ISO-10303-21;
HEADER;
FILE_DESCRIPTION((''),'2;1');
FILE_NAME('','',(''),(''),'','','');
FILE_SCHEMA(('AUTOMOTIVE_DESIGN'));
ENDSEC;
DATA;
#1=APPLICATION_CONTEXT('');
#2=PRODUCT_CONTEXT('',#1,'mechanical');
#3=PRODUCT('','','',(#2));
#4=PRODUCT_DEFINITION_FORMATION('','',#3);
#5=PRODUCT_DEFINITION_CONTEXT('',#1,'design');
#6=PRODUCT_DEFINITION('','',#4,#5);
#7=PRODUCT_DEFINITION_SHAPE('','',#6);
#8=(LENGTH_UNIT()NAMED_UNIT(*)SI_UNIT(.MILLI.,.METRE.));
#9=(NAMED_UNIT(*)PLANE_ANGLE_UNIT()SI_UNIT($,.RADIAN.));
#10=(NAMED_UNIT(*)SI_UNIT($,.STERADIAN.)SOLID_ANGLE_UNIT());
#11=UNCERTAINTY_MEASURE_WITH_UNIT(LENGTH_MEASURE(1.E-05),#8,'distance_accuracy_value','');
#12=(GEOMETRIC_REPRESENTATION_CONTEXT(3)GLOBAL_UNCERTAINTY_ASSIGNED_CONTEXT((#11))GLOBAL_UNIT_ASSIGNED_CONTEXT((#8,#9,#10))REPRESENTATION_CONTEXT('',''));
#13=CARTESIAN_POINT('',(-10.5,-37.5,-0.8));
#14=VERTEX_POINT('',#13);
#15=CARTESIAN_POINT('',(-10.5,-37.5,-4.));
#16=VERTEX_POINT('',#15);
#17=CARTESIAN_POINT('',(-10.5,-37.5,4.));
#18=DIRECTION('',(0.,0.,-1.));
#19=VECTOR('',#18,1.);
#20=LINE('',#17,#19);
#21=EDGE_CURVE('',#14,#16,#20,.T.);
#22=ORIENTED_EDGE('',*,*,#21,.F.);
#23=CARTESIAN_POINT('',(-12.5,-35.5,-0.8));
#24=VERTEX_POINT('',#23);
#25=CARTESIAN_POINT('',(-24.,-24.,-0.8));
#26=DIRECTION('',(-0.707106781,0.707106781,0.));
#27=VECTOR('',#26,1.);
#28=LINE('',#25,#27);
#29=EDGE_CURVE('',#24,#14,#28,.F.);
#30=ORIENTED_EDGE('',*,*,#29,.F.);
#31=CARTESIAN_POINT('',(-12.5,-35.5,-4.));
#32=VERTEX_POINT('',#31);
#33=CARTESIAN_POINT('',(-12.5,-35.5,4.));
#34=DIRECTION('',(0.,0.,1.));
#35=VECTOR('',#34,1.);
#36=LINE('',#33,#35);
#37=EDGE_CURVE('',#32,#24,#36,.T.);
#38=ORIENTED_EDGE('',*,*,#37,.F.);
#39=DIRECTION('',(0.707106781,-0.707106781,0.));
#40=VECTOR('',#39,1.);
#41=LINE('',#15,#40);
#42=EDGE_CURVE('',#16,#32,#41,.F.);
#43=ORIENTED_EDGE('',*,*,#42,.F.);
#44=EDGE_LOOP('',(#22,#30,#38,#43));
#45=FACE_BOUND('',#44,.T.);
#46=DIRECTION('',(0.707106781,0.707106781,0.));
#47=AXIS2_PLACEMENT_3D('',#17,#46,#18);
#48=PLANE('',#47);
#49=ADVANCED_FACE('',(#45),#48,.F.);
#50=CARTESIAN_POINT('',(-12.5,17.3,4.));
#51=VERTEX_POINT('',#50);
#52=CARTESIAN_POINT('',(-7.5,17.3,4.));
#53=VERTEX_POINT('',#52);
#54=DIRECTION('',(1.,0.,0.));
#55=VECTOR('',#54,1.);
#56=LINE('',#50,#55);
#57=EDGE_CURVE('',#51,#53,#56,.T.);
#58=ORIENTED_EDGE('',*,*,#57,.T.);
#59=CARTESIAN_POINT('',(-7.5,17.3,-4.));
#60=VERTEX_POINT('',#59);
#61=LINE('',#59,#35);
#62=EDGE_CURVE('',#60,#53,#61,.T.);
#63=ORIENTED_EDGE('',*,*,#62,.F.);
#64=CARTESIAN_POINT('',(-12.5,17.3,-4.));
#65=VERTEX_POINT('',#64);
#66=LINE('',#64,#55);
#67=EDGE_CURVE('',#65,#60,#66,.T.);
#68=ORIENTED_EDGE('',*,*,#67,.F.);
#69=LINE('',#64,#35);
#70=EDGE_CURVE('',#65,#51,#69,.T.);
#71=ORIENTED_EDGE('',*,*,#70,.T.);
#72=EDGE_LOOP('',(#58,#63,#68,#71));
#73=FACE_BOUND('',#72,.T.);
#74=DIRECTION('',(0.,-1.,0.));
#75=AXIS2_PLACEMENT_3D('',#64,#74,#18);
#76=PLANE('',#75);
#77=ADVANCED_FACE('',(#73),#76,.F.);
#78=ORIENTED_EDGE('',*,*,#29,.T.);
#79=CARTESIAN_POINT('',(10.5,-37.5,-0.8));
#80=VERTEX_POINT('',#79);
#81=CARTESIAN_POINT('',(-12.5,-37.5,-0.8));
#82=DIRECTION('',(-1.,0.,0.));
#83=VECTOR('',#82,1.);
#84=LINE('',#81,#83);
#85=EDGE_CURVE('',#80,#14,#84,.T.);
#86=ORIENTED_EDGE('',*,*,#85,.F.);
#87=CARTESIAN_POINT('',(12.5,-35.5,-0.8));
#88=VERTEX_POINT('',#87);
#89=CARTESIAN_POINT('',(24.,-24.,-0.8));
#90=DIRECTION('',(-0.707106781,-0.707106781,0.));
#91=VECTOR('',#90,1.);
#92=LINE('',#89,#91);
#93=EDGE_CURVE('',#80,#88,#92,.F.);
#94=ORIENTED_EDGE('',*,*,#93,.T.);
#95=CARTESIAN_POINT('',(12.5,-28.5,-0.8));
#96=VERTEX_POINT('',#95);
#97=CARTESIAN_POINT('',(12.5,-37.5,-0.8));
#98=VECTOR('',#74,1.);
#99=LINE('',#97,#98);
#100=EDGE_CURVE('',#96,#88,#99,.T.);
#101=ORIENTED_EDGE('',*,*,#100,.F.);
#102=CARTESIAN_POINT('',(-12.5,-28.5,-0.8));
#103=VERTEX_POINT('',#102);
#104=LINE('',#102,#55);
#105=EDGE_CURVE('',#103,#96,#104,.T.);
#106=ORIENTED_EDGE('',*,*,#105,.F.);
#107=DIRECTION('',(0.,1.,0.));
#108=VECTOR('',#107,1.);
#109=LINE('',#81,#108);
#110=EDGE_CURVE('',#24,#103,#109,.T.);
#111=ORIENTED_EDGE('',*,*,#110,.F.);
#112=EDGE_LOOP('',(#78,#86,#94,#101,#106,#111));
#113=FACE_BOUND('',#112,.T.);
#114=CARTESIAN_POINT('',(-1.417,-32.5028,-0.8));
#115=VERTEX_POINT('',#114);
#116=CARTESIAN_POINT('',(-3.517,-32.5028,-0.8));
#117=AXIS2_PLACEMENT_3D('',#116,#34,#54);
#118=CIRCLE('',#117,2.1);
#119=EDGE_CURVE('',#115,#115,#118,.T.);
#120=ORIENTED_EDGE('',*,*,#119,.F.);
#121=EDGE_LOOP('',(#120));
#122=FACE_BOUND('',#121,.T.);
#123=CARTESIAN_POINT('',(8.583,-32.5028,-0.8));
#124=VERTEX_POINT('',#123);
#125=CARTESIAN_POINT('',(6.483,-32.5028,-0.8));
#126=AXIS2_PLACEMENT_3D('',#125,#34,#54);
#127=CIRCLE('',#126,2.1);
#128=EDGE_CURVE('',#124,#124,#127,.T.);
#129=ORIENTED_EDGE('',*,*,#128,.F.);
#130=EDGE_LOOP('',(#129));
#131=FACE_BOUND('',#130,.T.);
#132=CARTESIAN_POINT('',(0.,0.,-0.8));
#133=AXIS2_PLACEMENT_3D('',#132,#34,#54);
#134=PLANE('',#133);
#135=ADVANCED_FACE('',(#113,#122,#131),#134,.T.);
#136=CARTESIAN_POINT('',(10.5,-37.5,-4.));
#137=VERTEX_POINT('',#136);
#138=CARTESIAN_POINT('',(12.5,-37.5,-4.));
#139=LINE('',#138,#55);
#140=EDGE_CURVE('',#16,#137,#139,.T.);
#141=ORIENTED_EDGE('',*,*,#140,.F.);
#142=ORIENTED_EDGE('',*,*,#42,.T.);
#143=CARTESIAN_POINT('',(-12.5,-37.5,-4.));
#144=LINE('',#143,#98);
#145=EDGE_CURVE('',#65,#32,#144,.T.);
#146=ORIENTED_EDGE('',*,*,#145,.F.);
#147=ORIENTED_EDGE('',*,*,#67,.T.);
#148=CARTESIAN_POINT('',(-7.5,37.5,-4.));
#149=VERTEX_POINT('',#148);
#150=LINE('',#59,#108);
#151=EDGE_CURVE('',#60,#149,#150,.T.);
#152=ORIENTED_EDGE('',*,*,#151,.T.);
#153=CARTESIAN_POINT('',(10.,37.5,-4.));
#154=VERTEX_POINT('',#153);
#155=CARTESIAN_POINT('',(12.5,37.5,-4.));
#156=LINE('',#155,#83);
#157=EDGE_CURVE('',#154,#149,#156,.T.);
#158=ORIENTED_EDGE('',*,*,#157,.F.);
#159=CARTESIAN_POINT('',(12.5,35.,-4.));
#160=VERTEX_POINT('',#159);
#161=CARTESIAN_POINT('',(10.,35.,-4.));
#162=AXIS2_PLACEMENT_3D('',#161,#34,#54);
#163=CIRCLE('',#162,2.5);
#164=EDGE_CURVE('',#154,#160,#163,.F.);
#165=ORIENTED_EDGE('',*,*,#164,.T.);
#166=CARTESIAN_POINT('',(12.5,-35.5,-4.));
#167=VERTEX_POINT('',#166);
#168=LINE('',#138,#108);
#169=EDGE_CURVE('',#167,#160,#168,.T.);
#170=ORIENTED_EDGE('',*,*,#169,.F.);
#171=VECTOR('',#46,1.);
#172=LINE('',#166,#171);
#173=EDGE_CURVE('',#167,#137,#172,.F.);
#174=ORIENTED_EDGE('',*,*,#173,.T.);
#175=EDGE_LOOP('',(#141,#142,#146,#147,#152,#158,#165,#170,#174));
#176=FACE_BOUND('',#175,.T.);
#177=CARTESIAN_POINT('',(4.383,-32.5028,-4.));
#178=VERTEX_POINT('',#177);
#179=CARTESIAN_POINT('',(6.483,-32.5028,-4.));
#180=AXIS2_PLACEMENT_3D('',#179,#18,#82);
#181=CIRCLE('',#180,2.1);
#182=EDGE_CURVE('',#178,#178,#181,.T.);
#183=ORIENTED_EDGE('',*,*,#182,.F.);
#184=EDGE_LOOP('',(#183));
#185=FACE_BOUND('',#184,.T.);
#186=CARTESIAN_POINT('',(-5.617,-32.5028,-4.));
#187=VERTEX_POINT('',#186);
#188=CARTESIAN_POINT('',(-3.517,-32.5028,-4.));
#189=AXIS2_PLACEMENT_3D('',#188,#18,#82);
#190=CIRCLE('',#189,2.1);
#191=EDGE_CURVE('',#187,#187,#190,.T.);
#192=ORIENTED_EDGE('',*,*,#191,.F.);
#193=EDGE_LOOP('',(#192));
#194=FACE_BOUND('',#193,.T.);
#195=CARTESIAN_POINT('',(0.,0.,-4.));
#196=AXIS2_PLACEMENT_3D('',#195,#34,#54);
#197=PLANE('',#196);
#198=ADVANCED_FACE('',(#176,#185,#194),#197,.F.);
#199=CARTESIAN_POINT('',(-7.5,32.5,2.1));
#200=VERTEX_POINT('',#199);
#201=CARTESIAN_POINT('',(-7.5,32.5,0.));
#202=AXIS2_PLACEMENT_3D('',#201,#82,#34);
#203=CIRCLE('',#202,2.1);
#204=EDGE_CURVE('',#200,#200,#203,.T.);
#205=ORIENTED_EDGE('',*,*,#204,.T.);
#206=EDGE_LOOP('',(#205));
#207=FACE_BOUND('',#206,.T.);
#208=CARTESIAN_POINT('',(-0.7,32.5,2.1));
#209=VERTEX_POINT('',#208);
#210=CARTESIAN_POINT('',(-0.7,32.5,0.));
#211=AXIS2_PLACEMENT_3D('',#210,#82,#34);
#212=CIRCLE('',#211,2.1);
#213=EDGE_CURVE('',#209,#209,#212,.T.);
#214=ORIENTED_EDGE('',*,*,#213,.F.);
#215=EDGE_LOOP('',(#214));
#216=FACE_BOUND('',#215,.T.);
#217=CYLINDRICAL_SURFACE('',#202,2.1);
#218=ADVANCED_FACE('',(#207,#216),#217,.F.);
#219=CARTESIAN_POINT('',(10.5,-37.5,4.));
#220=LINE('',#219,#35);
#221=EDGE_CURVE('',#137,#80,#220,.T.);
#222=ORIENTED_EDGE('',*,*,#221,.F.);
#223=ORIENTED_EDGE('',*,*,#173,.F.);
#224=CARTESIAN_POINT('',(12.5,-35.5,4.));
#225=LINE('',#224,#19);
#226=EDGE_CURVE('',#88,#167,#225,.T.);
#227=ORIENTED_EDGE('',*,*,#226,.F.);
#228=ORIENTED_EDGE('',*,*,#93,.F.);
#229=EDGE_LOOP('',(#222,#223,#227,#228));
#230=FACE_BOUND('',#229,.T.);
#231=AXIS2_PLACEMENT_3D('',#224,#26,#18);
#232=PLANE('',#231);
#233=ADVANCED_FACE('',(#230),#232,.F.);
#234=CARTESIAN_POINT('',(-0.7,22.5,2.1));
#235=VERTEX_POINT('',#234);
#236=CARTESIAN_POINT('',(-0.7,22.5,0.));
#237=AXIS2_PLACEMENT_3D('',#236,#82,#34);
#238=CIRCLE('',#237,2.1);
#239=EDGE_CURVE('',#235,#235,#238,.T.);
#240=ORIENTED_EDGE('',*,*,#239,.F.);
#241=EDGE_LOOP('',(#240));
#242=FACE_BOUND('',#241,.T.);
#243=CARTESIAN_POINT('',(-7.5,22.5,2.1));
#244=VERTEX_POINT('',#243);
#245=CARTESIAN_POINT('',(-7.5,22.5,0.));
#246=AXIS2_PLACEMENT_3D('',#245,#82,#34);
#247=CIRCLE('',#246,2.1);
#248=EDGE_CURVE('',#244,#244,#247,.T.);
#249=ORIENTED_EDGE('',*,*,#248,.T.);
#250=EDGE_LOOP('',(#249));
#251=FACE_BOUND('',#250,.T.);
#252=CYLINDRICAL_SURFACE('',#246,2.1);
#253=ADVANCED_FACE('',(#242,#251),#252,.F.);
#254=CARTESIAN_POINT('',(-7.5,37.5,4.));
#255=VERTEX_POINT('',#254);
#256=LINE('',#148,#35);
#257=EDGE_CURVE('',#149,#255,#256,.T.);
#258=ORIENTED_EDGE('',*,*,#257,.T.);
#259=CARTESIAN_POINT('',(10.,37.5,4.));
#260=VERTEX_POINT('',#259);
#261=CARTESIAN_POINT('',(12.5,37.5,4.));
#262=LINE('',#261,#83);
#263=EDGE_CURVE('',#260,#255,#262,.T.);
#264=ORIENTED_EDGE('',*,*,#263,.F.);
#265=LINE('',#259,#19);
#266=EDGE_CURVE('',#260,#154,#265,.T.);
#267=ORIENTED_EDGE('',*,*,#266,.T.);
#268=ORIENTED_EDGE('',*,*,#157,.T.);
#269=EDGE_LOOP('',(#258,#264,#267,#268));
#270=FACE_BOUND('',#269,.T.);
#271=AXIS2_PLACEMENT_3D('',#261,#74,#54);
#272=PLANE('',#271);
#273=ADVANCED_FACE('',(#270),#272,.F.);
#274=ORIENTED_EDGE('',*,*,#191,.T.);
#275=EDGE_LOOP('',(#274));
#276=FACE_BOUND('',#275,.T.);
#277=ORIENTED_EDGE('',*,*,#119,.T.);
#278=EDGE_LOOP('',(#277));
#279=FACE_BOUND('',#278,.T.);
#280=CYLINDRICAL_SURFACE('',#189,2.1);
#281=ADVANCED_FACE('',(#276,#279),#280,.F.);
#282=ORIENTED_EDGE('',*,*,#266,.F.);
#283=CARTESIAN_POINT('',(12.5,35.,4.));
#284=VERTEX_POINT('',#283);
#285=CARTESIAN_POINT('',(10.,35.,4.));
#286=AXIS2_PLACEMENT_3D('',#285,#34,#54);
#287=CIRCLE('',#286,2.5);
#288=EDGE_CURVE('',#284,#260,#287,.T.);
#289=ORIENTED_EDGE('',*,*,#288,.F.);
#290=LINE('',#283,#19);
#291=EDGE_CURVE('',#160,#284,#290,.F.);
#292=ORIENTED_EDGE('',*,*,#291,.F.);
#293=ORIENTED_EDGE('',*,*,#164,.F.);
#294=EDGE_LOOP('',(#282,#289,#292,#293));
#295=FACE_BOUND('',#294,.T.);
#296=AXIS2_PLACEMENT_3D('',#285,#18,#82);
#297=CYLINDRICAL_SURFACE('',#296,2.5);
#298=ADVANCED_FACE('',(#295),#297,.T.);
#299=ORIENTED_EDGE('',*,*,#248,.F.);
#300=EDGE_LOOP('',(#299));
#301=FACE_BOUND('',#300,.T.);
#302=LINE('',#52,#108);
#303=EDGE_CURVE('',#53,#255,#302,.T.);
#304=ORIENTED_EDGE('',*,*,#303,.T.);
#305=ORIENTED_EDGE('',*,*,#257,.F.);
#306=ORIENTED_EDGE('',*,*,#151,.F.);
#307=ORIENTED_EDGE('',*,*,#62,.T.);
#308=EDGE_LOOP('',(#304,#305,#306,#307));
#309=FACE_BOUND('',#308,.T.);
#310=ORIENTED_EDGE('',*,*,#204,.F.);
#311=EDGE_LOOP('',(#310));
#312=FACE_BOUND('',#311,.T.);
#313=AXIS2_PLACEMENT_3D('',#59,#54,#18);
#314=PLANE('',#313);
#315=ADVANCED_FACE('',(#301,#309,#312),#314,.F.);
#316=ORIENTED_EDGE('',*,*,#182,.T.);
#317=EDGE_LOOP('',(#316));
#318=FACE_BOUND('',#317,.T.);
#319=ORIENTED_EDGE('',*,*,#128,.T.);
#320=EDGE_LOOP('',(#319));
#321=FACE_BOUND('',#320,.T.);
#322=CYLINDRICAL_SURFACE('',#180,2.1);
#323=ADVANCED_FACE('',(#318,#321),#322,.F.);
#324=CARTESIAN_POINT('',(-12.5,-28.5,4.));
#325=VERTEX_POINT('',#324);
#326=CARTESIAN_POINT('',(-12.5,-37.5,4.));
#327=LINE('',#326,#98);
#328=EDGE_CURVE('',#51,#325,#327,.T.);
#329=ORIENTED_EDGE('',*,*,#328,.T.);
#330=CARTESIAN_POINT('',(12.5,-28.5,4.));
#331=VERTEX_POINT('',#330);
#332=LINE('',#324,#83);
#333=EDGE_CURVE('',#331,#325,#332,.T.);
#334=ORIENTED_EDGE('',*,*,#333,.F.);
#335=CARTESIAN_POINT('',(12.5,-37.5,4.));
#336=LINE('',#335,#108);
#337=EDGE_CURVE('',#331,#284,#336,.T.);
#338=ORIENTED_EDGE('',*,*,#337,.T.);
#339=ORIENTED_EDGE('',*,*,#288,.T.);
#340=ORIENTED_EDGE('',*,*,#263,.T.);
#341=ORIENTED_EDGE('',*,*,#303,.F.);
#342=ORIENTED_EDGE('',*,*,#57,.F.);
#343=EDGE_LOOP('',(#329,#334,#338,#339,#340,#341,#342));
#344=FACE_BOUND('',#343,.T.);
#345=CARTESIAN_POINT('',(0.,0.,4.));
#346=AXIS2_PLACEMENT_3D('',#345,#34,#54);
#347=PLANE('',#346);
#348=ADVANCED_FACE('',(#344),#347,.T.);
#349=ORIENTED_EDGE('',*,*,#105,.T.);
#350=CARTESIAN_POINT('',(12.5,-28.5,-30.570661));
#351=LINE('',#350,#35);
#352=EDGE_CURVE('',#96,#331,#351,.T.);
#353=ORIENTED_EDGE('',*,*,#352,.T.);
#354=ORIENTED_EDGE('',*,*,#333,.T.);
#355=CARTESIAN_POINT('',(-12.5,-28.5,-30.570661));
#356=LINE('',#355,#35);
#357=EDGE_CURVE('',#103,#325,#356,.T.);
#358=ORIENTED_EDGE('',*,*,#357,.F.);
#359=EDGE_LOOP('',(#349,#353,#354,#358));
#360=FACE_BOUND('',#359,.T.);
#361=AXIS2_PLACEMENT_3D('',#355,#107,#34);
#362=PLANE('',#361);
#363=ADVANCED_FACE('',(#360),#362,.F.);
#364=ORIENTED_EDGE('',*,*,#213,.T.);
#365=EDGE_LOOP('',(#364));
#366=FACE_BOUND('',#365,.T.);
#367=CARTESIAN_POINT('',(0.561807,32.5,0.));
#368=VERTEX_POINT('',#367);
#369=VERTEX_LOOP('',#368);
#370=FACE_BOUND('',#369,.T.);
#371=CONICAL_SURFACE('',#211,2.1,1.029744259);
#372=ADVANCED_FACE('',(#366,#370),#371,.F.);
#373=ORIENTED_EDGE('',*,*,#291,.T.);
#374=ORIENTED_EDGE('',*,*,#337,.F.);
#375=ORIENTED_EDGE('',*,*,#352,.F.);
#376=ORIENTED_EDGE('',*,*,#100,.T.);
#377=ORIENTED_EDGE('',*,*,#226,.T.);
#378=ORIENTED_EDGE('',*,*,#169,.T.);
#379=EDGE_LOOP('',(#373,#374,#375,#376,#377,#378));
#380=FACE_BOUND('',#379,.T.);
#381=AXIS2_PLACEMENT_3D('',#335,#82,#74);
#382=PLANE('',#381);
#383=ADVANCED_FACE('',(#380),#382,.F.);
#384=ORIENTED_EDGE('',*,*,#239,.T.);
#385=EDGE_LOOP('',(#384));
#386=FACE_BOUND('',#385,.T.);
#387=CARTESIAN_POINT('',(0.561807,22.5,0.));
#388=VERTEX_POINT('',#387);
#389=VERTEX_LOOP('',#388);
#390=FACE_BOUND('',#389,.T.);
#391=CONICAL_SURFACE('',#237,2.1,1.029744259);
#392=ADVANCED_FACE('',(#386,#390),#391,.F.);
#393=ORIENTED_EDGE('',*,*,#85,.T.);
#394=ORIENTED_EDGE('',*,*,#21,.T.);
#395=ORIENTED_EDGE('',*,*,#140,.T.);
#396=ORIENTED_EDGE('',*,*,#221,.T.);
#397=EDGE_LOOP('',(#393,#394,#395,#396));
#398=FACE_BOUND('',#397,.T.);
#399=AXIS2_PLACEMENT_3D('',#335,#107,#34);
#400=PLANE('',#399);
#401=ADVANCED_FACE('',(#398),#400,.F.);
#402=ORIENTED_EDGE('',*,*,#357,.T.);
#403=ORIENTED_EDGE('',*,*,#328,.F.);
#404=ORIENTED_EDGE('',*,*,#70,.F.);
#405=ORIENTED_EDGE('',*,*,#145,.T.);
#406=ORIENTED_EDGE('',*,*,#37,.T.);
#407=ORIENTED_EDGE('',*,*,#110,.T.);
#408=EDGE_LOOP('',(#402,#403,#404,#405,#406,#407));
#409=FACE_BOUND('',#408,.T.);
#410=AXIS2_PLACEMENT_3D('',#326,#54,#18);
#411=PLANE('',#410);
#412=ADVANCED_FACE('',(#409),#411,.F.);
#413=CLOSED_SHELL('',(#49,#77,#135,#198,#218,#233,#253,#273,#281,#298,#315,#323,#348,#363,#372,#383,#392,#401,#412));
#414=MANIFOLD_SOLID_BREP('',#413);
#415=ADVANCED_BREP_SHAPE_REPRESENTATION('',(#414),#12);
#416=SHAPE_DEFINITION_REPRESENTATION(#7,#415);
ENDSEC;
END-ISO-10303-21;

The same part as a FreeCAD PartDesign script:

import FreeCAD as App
import Part
import Sketcher

V = App.Vector
Q = App.Units.Quantity


def edges_at(feature, points):
    """Names of the edges that pass closest to the given points."""
    edges = feature.Shape.Edges
    near = lambda p: min(range(len(edges)), key=lambda i: edges[i].distToShape(Part.Vertex(*p))[0])
    return sorted({f"Edge{near(p) + 1}" for p in points})


def add_polygon(sketch, points):
    """Adds a closed chain of lines whose ends are joined by coincident constraints."""
    first, n = sketch.GeometryCount, len(points)
    for a, b in zip(points, points[1:] + points[:1]):
        sketch.addGeometry(Part.LineSegment(App.Vector(*a, 0), App.Vector(*b, 0)), False)
    for i in range(n):
        sketch.addConstraint(Sketcher.Constraint("Coincident", first + i, 2, first + (i + 1) % n, 1))

doc = App.newDocument("Part")
params = doc.addObject("Spreadsheet::Sheet", "Params")
for row, (alias, value) in enumerate([
    ("sketch1_width", "25 mm"),
    ("sketch1_height", "75 mm"),
    ("pad1_length", "8 mm"),
    ("sketch2_width", "5 mm"),
    ("sketch2_height", "20.2 mm"),
    ("sketch3_width", "25 mm"),
    ("sketch3_height", "9 mm"),
    ("pocket2_length", "4.8 mm"),
    ("fillet_radius", "2.5 mm"),
    ("chamfer_size", "2 mm"),
    ("sketch4_diameter", "4.2 mm"),
    ("hole_diameter", "4.2 mm"),
    ("hole_depth", "6.8 mm"),
    ("sketch5_diameter", "4.2 mm"),
    ("hole2_diameter", "4.2 mm"),
], start=1):
    params.set(f"A{row}", alias)
    params.set(f"B{row}", "=" + value)
    params.setAlias(f"B{row}", alias)

body = doc.addObject("PartDesign::Body", "Body")

# Sketch on XY plane
sketch1 = body.newObject("Sketcher::SketchObject", "Sketch")
sketch1.AttachmentSupport = (doc.getObject("XY_Plane"), [""])
sketch1.MapMode = "FlatFace"
add_polygon(sketch1, [(-12.5, 37.5), (-12.5, -37.5), (12.5, -37.5), (12.5, 37.5)])  # lines 0-3
sketch1.addConstraint([
    Sketcher.Constraint("Vertical", 0),
    Sketcher.Constraint("Horizontal", 1),
    Sketcher.Constraint("Vertical", 2),
    Sketcher.Constraint("Horizontal", 3),
    Sketcher.Constraint("Symmetric", 0, 2, 2, 2, -1, 1),
    Sketcher.Constraint("DistanceX", 1, 1, 1, 2, Q("25 mm")),
    Sketcher.Constraint("DistanceY", 0, 2, 0, 1, Q("75 mm")),
])
sketch1.setExpression("Constraints[9]", "Params.sketch1_width")
sketch1.setExpression("Constraints[10]", "Params.sketch1_height")
pad1 = body.newObject("PartDesign::Pad", "Pad")
pad1.Profile = sketch1
pad1.setExpression("Length", "Params.pad1_length")
pad1.Midplane = True

# Sketch on XY plane
sketch2 = body.newObject("Sketcher::SketchObject", "Sketch001")
sketch2.AttachmentSupport = (doc.getObject("XY_Plane"), [""])
sketch2.MapMode = "FlatFace"
sketch2.AttachmentOffset = App.Placement(V(0, 0, 4), App.Rotation())
add_polygon(sketch2, [(-12.5, 37.5), (-12.5, 17.3), (-7.5, 17.3), (-7.5, 37.5)])  # lines 0-3
sketch2.addConstraint([
    Sketcher.Constraint("Vertical", 0),
    Sketcher.Constraint("Horizontal", 1),
    Sketcher.Constraint("Vertical", 2),
    Sketcher.Constraint("Horizontal", 3),
    Sketcher.Constraint("DistanceX", 1, 1, 1, 2, Q("5 mm")),
    Sketcher.Constraint("DistanceY", 0, 2, 0, 1, Q("20.2 mm")),
    Sketcher.Constraint("DistanceX", 0, 2, -1, 1, Q("12.5 mm")),
    Sketcher.Constraint("DistanceY", -1, 1, 0, 2, Q("17.3 mm")),
])
sketch2.setExpression("Constraints[8]", "Params.sketch2_width")
sketch2.setExpression("Constraints[9]", "Params.sketch2_height")
pocket1 = body.newObject("PartDesign::Pocket", "Pocket")
pocket1.Profile = sketch2
pocket1.Type = "ThroughAll"

# Sketch on XY plane
sketch3 = body.newObject("Sketcher::SketchObject", "Sketch002")
sketch3.AttachmentSupport = (doc.getObject("XY_Plane"), [""])
sketch3.MapMode = "FlatFace"
sketch3.AttachmentOffset = App.Placement(V(0, 0, 4), App.Rotation())
add_polygon(sketch3, [(-12.5, -28.5), (-12.5, -37.5), (12.5, -37.5), (12.5, -28.5)])  # lines 0-3
sketch3.addConstraint([
    Sketcher.Constraint("Vertical", 0),
    Sketcher.Constraint("Horizontal", 1),
    Sketcher.Constraint("Vertical", 2),
    Sketcher.Constraint("Horizontal", 3),
    Sketcher.Constraint("DistanceX", 1, 1, 1, 2, Q("25 mm")),
    Sketcher.Constraint("DistanceY", 0, 2, 0, 1, Q("9 mm")),
    Sketcher.Constraint("DistanceX", 0, 2, -1, 1, Q("12.5 mm")),
    Sketcher.Constraint("DistanceY", 0, 2, -1, 1, Q("37.5 mm")),
])
sketch3.setExpression("Constraints[8]", "Params.sketch3_width")
sketch3.setExpression("Constraints[9]", "Params.sketch3_height")
pocket2 = body.newObject("PartDesign::Pocket", "Pocket001")
pocket2.Profile = sketch3
pocket2.setExpression("Length", "Params.pocket2_length")
doc.recompute()

fillet = body.newObject("PartDesign::Fillet", "Fillet")
fillet.Base = (pocket2, edges_at(pocket2, [(12.5, 37.5, 0)]))
fillet.setExpression("Radius", "Params.fillet_radius")
doc.recompute()

chamfer = body.newObject("PartDesign::Chamfer", "Chamfer")
chamfer.Base = (fillet, edges_at(fillet, [(12.5, -37.5, -2.4), (-12.5, -37.5, -2.4)]))
chamfer.setExpression("Size", "Params.chamfer_size")

# Sketch on YZ plane
sketch4 = body.newObject("Sketcher::SketchObject", "Sketch003")
sketch4.AttachmentSupport = (doc.getObject("YZ_Plane"), [""])
sketch4.MapMode = "FlatFace"
sketch4.AttachmentOffset = App.Placement(V(0, 0, -7.5), App.Rotation())
sketch4.addGeometry([
    Part.Circle(V(22.5, 0, 0), V(0, 0, 1), 2.1),
    Part.Circle(V(32.5, 0, 0), V(0, 0, 1), 2.1),
], False)
sketch4.addConstraint([
    Sketcher.Constraint("Equal", 0, 1),
    Sketcher.Constraint("PointOnObject", 0, 3, -1),
    Sketcher.Constraint("PointOnObject", 1, 3, -1),
    Sketcher.Constraint("Diameter", 0, Q("4.2 mm")),
    Sketcher.Constraint("DistanceX", 0, 3, 1, 3, Q("10 mm")),
    Sketcher.Constraint("DistanceX", -1, 1, 0, 3, Q("22.5 mm")),
])
sketch4.setExpression("Constraints[3]", "Params.sketch4_diameter")
doc.recompute()
hole = body.newObject("PartDesign::Hole", "Hole")
hole.Profile = sketch4
hole.ThreadType = "None"
hole.setExpression("Diameter", "Params.hole_diameter")
hole.DepthType = "Dimension"
hole.setExpression("Depth", "Params.hole_depth")
hole.DrillPoint = "Angled"
hole.DrillPointAngle = 118
hole.Reversed = True

# Sketch on XY plane
sketch5 = body.newObject("Sketcher::SketchObject", "Sketch004")
sketch5.AttachmentSupport = (doc.getObject("XY_Plane"), [""])
sketch5.MapMode = "FlatFace"
sketch5.AttachmentOffset = App.Placement(V(0, 0, -4), App.Rotation())
sketch5.addGeometry([
    Part.Circle(V(6.483, -32.5028, 0), V(0, 0, 1), 2.1),
    Part.Circle(V(-3.517, -32.5028, 0), V(0, 0, 1), 2.1),
], False)
sketch5.addConstraint([
    Sketcher.Constraint("Equal", 0, 1),
    Sketcher.Constraint("Horizontal", 0, 3, 1, 3),
    Sketcher.Constraint("Diameter", 0, Q("4.2 mm")),
    Sketcher.Constraint("DistanceX", 1, 3, 0, 3, Q("10 mm")),
    Sketcher.Constraint("DistanceX", -1, 1, 0, 3, Q("6.483 mm")),
    Sketcher.Constraint("DistanceY", 0, 3, -1, 1, Q("32.5028 mm")),
])
sketch5.setExpression("Constraints[2]", "Params.sketch5_diameter")
doc.recompute()
hole2 = body.newObject("PartDesign::Hole", "Hole001")
hole2.Profile = sketch5
hole2.ThreadType = "None"
hole2.setExpression("Diameter", "Params.hole2_diameter")
hole2.DepthType = "ThroughAll"
hole2.Reversed = True

doc.recompute()
